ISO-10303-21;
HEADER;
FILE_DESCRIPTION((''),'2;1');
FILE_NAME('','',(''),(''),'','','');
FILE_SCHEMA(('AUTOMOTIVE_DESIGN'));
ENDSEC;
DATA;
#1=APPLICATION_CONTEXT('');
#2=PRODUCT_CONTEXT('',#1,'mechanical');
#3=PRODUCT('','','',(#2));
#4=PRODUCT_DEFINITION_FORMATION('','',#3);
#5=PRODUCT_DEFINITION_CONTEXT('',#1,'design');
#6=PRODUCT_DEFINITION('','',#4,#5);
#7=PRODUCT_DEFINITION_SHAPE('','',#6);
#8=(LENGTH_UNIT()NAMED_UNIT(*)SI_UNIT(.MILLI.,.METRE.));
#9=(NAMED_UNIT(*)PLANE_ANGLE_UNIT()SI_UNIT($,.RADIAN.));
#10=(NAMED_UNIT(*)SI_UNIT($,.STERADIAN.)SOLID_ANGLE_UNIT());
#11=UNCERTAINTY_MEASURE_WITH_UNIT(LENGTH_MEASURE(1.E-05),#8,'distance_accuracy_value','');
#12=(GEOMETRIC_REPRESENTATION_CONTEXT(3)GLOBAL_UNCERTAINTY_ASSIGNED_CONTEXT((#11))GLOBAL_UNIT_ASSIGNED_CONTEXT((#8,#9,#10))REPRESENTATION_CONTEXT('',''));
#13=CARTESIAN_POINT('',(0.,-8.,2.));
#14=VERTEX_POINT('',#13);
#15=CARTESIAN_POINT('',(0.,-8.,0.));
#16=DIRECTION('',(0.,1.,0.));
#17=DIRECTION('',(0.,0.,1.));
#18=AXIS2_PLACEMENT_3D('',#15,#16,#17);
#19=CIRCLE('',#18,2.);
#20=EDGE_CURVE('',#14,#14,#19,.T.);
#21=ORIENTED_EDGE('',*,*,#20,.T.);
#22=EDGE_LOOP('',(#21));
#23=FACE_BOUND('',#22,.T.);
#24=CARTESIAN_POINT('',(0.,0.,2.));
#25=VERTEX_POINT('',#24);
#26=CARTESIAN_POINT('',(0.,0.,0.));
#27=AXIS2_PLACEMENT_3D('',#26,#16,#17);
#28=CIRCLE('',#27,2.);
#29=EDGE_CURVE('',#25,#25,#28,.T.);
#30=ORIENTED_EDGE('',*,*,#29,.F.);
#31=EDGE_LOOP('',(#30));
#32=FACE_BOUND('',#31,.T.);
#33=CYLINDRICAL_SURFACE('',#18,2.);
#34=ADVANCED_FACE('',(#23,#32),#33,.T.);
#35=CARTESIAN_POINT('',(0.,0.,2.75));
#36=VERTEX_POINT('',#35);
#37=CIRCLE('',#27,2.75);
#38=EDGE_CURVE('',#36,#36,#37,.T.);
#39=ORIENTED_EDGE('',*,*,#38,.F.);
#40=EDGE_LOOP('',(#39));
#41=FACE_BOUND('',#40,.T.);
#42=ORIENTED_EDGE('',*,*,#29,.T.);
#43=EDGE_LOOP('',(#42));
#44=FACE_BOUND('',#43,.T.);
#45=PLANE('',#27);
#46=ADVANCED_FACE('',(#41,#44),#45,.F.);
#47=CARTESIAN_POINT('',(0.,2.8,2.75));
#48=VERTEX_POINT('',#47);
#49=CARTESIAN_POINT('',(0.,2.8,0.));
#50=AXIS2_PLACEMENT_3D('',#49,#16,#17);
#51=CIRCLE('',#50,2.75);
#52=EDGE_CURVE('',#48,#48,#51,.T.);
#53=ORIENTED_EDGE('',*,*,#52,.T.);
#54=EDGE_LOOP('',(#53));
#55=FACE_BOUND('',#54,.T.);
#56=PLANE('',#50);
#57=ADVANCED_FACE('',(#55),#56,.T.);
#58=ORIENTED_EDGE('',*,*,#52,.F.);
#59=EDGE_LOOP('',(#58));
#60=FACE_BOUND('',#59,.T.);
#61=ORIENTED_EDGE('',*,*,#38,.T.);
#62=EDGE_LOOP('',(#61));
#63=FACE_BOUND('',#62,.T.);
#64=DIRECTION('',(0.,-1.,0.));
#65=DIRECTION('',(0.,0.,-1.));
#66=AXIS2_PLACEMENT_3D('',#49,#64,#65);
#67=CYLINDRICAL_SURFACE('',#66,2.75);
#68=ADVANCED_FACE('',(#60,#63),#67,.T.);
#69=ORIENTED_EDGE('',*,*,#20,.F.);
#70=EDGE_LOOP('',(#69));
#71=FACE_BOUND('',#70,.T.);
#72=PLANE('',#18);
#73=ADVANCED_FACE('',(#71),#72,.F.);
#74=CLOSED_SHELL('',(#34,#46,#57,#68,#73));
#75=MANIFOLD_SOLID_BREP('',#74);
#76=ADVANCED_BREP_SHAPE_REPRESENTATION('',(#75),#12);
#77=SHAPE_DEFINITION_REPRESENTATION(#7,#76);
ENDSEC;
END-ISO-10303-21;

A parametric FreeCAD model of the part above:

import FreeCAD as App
import Part
import Sketcher
from FreeCAD import Vector

doc = App.newDocument("Part")
body = doc.addObject("PartDesign::Body", "Body")

sketch1 = body.newObject("Sketcher::SketchObject", "Sketch")
sketch1.AttachmentSupport = (doc.getObject("XZ_Plane"), [""])
sketch1.MapMode = "FlatFace"
sketch1.addGeometry(Part.Circle(Vector(0, 0, 0), Vector(0, 0, 1), 2.8), False)
sketch1.addConstraint([
    Sketcher.Constraint("Coincident", 0, 3, -1, 1),
    Sketcher.Constraint("Diameter", 0, 5.5),
])
pad1 = body.newObject("PartDesign::Pad", "Pad")
pad1.Profile = sketch1
pad1.Length = 2.8
pad1.Reversed = True

sketch2 = body.newObject("Sketcher::SketchObject", "Sketch001")
sketch2.AttachmentSupport = (doc.getObject("XZ_Plane"), [""])
sketch2.MapMode = "FlatFace"
sketch2.addGeometry(Part.Circle(Vector(0, 0, 0), Vector(0, 0, 1), 2), False)
sketch2.addConstraint([
    Sketcher.Constraint("Coincident", 0, 3, -1, 1),
    Sketcher.Constraint("Diameter", 0, 4.0),
])
pad2 = body.newObject("PartDesign::Pad", "Pad001")
pad2.Profile = sketch2
pad2.Length = 8

doc.recompute()
